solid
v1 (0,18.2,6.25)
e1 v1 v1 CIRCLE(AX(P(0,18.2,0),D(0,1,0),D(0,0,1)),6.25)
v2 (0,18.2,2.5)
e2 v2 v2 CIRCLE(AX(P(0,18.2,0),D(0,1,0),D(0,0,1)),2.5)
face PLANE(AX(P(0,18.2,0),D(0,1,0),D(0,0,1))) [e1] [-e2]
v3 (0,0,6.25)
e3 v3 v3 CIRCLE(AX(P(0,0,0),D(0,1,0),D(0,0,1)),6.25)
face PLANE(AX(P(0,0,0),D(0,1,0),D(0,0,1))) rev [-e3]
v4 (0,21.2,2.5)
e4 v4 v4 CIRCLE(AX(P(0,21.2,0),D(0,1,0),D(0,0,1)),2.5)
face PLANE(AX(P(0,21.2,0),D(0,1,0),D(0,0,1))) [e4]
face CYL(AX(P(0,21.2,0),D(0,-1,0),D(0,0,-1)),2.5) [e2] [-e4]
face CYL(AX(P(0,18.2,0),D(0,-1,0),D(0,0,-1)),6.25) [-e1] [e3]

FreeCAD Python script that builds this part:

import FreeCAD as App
import Part
import Sketcher
from FreeCAD import Vector
Q = App.Units.Quantity

doc = App.newDocument("Part")
body = doc.addObject("PartDesign::Body", "Body")

sketch1 = body.newObject("Sketcher::SketchObject", "Sketch")
sketch1.AttachmentSupport = (doc.getObject("XZ_Plane"), [""])
sketch1.MapMode = "FlatFace"
sketch1.addGeometry(Part.Circle(Vector(0, 0, 0), Vector(0, 0, 1), 6), False)
sketch1.addConstraint([
    Sketcher.Constraint("Coincident", 0, 3, -1, 1),
    Sketcher.Constraint("Diameter", 0, Q("12.5 mm")),
])
pad1 = body.newObject("PartDesign::Pad", "Pad")
pad1.Profile = sketch1
pad1.Length = 18.2
pad1.Reversed = True

sketch2 = body.newObject("Sketcher::SketchObject", "Sketch001")
sketch2.AttachmentSupport = (doc.getObject("XZ_Plane"), [""])
sketch2.MapMode = "FlatFace"
sketch2.AttachmentOffset = App.Placement(Vector(0, 0, -18.2), App.Rotation())
sketch2.addGeometry(Part.Circle(Vector(0, 0, 0), Vector(0, 0, 1), 2.5), False)
sketch2.addConstraint([
    Sketcher.Constraint("Coincident", 0, 3, -1, 1),
    Sketcher.Constraint("Diameter", 0, Q("5 mm")),
])
pad2 = body.newObject("PartDesign::Pad", "Pad001")
pad2.Profile = sketch2
pad2.Length = 3
pad2.Reversed = True

doc.recompute()
